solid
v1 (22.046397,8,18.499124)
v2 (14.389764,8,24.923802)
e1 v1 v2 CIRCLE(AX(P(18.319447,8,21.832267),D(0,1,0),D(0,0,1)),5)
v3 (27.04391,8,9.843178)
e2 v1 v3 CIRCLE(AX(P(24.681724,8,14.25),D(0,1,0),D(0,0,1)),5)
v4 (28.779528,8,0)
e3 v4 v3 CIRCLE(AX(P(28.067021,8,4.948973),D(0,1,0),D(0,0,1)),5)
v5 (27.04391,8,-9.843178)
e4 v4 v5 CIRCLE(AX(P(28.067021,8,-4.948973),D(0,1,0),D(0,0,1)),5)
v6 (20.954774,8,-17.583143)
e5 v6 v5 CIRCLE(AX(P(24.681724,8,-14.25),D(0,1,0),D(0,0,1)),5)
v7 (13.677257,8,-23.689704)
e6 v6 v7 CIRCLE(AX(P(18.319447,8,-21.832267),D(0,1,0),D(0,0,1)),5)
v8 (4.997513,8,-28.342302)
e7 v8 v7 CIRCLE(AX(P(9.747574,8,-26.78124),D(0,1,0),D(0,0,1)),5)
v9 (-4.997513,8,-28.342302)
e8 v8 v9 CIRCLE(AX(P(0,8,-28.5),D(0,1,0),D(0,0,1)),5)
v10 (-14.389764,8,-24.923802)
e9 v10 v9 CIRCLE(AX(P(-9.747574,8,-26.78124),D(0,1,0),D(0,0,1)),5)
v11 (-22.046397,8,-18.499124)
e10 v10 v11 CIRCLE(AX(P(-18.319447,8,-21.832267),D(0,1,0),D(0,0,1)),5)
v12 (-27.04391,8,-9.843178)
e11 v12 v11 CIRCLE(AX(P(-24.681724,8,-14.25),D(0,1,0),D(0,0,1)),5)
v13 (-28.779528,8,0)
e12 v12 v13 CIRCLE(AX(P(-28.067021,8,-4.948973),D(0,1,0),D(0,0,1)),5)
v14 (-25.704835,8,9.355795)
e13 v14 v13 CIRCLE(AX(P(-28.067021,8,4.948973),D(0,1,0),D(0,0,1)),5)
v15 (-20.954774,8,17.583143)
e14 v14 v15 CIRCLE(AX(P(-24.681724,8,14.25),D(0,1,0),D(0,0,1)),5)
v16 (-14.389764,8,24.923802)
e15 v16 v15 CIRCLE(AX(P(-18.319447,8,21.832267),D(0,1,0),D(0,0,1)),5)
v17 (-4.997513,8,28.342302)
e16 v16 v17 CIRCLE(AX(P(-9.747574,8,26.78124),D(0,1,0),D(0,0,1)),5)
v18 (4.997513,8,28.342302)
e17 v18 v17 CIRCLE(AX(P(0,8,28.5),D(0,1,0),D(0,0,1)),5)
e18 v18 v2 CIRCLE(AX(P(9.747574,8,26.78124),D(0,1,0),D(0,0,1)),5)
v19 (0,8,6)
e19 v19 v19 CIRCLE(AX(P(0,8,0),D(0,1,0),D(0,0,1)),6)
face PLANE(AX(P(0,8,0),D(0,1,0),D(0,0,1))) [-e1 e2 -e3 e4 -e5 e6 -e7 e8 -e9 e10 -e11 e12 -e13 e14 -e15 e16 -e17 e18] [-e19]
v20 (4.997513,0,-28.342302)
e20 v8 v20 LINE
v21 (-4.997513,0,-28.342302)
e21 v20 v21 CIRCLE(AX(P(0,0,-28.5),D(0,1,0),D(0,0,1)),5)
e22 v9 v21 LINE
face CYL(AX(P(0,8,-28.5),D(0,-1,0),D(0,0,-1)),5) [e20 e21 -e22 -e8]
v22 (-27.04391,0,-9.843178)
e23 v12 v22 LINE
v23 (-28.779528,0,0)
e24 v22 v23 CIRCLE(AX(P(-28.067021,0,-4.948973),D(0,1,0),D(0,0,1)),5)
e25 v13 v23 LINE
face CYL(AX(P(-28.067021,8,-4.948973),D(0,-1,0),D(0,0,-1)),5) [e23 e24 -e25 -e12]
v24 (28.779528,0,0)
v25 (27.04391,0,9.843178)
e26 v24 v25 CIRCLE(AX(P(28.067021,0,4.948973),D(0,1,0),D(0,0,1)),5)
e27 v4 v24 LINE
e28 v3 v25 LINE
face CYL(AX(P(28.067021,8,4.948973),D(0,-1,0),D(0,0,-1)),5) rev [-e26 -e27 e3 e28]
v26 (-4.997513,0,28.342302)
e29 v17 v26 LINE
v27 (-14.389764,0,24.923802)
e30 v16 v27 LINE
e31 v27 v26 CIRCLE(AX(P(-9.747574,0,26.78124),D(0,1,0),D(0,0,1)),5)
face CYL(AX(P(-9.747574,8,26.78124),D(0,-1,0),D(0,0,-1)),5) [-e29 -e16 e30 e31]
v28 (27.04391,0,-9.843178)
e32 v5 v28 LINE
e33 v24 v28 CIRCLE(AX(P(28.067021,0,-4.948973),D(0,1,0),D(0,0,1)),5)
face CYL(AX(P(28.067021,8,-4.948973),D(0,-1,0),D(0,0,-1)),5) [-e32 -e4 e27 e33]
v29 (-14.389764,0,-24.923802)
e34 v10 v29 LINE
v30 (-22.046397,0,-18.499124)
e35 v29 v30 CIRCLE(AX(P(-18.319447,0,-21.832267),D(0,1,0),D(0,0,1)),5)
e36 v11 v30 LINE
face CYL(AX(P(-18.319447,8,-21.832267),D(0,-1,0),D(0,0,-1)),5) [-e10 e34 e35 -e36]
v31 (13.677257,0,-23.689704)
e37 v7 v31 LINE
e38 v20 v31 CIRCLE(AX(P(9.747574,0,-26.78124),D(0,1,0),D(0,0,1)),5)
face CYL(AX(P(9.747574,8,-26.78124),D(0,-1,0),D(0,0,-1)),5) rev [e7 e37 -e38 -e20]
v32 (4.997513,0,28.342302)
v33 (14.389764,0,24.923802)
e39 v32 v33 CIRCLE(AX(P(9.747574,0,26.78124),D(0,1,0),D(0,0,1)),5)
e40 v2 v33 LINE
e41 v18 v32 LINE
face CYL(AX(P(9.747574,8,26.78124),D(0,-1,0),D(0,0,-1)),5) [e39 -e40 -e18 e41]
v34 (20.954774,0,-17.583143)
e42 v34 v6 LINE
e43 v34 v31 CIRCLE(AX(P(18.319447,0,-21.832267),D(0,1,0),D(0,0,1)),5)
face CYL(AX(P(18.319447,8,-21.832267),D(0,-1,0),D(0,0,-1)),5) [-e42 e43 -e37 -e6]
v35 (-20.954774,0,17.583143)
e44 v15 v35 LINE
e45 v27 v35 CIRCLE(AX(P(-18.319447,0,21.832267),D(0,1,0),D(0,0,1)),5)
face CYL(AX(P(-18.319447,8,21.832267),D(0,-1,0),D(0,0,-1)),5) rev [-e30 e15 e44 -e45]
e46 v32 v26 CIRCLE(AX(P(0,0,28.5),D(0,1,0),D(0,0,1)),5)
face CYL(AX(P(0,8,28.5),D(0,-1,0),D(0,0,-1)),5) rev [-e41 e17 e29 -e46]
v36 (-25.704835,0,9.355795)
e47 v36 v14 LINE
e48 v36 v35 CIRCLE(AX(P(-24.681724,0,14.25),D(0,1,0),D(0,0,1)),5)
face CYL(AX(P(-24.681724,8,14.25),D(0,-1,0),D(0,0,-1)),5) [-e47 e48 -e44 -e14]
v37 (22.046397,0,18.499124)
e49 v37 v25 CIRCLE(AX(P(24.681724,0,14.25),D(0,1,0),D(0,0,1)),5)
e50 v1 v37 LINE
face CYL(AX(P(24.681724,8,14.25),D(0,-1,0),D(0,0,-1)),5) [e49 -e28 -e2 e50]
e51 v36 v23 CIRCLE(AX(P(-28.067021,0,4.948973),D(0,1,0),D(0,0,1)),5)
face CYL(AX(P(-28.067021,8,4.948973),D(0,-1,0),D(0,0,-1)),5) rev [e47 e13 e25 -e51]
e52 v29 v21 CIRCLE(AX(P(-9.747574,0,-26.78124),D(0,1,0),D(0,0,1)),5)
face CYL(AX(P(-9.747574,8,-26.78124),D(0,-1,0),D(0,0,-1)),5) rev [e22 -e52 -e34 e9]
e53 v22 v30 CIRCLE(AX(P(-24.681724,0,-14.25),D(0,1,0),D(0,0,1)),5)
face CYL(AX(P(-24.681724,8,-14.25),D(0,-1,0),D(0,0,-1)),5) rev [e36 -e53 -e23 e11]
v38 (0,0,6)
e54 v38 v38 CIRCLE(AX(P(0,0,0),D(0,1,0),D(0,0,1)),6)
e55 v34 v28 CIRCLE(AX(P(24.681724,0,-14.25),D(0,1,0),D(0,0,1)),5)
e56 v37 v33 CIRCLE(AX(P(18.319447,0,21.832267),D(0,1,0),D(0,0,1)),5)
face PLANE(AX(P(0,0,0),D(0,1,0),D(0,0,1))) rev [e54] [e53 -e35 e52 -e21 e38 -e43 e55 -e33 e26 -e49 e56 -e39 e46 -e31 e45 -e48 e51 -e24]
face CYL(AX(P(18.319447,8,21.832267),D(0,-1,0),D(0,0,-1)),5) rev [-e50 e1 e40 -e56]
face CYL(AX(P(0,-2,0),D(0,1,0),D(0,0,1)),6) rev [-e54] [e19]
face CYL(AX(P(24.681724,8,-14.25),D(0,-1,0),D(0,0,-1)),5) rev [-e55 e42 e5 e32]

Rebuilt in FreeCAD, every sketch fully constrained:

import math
import FreeCAD as App
import Part
import Sketcher

doc = App.newDocument("Part")
body = doc.addObject("PartDesign::Body", "Body")

sketch1 = doc.addObject("Sketcher::SketchObject", "Sketch")
body.addObject(sketch1)
sketch1.AttachmentSupport = (doc.XZ_Plane, [""])
sketch1.MapMode = "FlatFace"
sketch1.addGeometry([
    Part.ArcOfCircle(Part.Circle(App.Vector(28, -5, 0), App.Vector(0, 0, 1), 5), math.radians(-102), math.radians(82)),
    Part.ArcOfCircle(Part.Circle(App.Vector(25, -14, 0), App.Vector(0, 0, 1), 5), math.radians(62), math.radians(222)),
    Part.ArcOfCircle(Part.Circle(App.Vector(18, -22, 0), App.Vector(0, 0, 1), 5), math.radians(-158), math.radians(58)),
    Part.ArcOfCircle(Part.Circle(App.Vector(10, -27, 0), App.Vector(0, 0, 1), 5), math.radians(38), math.radians(198)),
    Part.ArcOfCircle(Part.Circle(App.Vector(0, -28, 0), App.Vector(0, 0, 1), 5), math.radians(178), math.radians(362)),
    Part.ArcOfCircle(Part.Circle(App.Vector(-10, -27, 0), App.Vector(0, 0, 1), 5), math.radians(-18), math.radians(158)),
    Part.ArcOfCircle(Part.Circle(App.Vector(-18, -22, 0), App.Vector(0, 0, 1), 5), math.radians(138), math.radians(322)),
    Part.ArcOfCircle(Part.Circle(App.Vector(-25, -14, 0), App.Vector(0, 0, 1), 5), math.radians(-58), math.radians(118)),
    Part.ArcOfCircle(Part.Circle(App.Vector(-28, -5, 0), App.Vector(0, 0, 1), 5), math.radians(98), math.radians(282)),
    Part.ArcOfCircle(Part.Circle(App.Vector(-28, 5, 0), App.Vector(0, 0, 1), 5), math.radians(-98), math.radians(62)),
    Part.ArcOfCircle(Part.Circle(App.Vector(-25, 14, 0), App.Vector(0, 0, 1), 5), math.radians(42), math.radians(258)),
    Part.ArcOfCircle(Part.Circle(App.Vector(-18, 22, 0), App.Vector(0, 0, 1), 5), math.radians(-122), math.radians(38)),
    Part.ArcOfCircle(Part.Circle(App.Vector(-10, 27, 0), App.Vector(0, 0, 1), 5), math.radians(18), math.radians(202)),
    Part.ArcOfCircle(Part.Circle(App.Vector(0, 28, 0), App.Vector(0, 0, 1), 5), math.radians(-178), math.radians(-2)),
    Part.ArcOfCircle(Part.Circle(App.Vector(10, 27, 0), App.Vector(0, 0, 1), 5), math.radians(-22), math.radians(162)),
    Part.ArcOfCircle(Part.Circle(App.Vector(18, 22, 0), App.Vector(0, 0, 1), 5), math.radians(142), math.radians(318)),
    Part.ArcOfCircle(Part.Circle(App.Vector(25, 14, 0), App.Vector(0, 0, 1), 5), math.radians(-62), math.radians(122)),
    Part.ArcOfCircle(Part.Circle(App.Vector(28, 5, 0), App.Vector(0, 0, 1), 5), math.radians(102), math.radians(278)),
], False)
sketch1.addConstraint([
    Sketcher.Constraint("Coincident", 0, 1, 1, 1),
    Sketcher.Constraint("Coincident", 1, 2, 2, 2),
    Sketcher.Constraint("Coincident", 2, 1, 3, 1),
    Sketcher.Constraint("Coincident", 3, 2, 4, 2),
    Sketcher.Constraint("Coincident", 4, 1, 5, 1),
    Sketcher.Constraint("Coincident", 5, 2, 6, 2),
    Sketcher.Constraint("Coincident", 6, 1, 7, 1),
    Sketcher.Constraint("Coincident", 7, 2, 8, 2),
    Sketcher.Constraint("Coincident", 8, 1, 9, 1),
    Sketcher.Constraint("Coincident", 9, 2, 10, 2),
    Sketcher.Constraint("Coincident", 10, 1, 11, 1),
    Sketcher.Constraint("Coincident", 11, 2, 12, 2),
    Sketcher.Constraint("Coincident", 12, 1, 13, 1),
    Sketcher.Constraint("Coincident", 13, 2, 14, 2),
    Sketcher.Constraint("Coincident", 14, 1, 15, 1),
    Sketcher.Constraint("Coincident", 15, 2, 16, 2),
    Sketcher.Constraint("Coincident", 16, 1, 17, 1),
    Sketcher.Constraint("Coincident", 17, 2, 0, 2),
    Sketcher.Constraint("Equal", 0, 1),
    Sketcher.Constraint("Equal", 1, 2),
    Sketcher.Constraint("Equal", 2, 3),
    Sketcher.Constraint("Equal", 3, 4),
    Sketcher.Constraint("Equal", 4, 5),
    Sketcher.Constraint("Equal", 5, 6),
    Sketcher.Constraint("Equal", 6, 7),
    Sketcher.Constraint("Equal", 7, 8),
    Sketcher.Constraint("Equal", 8, 9),
    Sketcher.Constraint("Equal", 9, 10),
    Sketcher.Constraint("Equal", 10, 11),
    Sketcher.Constraint("Equal", 11, 12),
    Sketcher.Constraint("Equal", 12, 13),
    Sketcher.Constraint("Equal", 13, 14),
    Sketcher.Constraint("Equal", 14, 15),
    Sketcher.Constraint("Equal", 15, 16),
    Sketcher.Constraint("Equal", 16, 17),
    Sketcher.Constraint("Symmetric", 0, 3, 9, 3, -1, 1),
    Sketcher.Constraint("Symmetric", 1, 3, 10, 3, -1, 1),
    Sketcher.Constraint("Symmetric", 2, 3, 11, 3, -1, 1),
    Sketcher.Constraint("Symmetric", 3, 3, 12, 3, -1, 1),
    Sketcher.Constraint("Symmetric", 4, 3, 13, 3, -1, 1),
    Sketcher.Constraint("Symmetric", 5, 3, 14, 3, -1, 1),
    Sketcher.Constraint("Symmetric", 6, 3, 15, 3, -1, 1),
    Sketcher.Constraint("Symmetric", 7, 3, 16, 3, -1, 1),
    Sketcher.Constraint("Symmetric", 8, 3, 17, 3, -1, 1),
    Sketcher.Constraint("Symmetric", 3, 3, 5, 3, -2),
    Sketcher.Constraint("Symmetric", 2, 3, 6, 3, -2),
    Sketcher.Constraint("Symmetric", 1, 3, 7, 3, -2),
    Sketcher.Constraint("Symmetric", 0, 3, 8, 3, -2),
    Sketcher.Constraint("PointOnObject", 4, 3, -2),
    Sketcher.Constraint("Radius", 0, 5.0),
    Sketcher.Constraint("DistanceY", 4, 3, -1, 1, 28.5),
    Sketcher.Constraint("DistanceY", 7, 3, 10, 3, 28.5),
    Sketcher.Constraint("DistanceY", 3, 2, -1, 1, 28.342302),
    Sketcher.Constraint("DistanceY", 5, 2, -1, 1, 24.923802),
    Sketcher.Constraint("DistanceX", 5, 3, 1, 3, 34.429298),
    Sketcher.Constraint("DistanceX", 3, 3, 1, 2, 11.2072),
    Sketcher.Constraint("DistanceX", -1, 1, 0, 3, 28.067021),
    Sketcher.Constraint("DistanceY", 3, 3, -1, 1, 26.78124),
    Sketcher.Constraint("DistanceX", -1, 1, 0, 1, 27.04391),
])
pad1 = doc.addObject("PartDesign::Pad", "Pad")
body.addObject(pad1)
pad1.Profile = sketch1
pad1.Length = 8
pad1.Reversed = True

sketch2 = doc.addObject("Sketcher::SketchObject", "Sketch001")
body.addObject(sketch2)
sketch2.AttachmentSupport = (doc.XZ_Plane, [""])
sketch2.MapMode = "FlatFace"
sketch2.AttachmentOffset = App.Placement(App.Vector(0, 0, -8), App.Rotation())
sketch2.addGeometry(Part.Circle(App.Vector(0, 0, 0), App.Vector(0, 0, 1), 6), False)
sketch2.addConstraint([
    Sketcher.Constraint("Coincident", 0, 3, -1, 1),
    Sketcher.Constraint("Diameter", 0, 12.0),
])
pocket1 = doc.addObject("PartDesign::Pocket", "Pocket")
body.addObject(pocket1)
pocket1.Profile = sketch2
pocket1.Length = 10
pocket1.Reversed = True

doc.recompute()
